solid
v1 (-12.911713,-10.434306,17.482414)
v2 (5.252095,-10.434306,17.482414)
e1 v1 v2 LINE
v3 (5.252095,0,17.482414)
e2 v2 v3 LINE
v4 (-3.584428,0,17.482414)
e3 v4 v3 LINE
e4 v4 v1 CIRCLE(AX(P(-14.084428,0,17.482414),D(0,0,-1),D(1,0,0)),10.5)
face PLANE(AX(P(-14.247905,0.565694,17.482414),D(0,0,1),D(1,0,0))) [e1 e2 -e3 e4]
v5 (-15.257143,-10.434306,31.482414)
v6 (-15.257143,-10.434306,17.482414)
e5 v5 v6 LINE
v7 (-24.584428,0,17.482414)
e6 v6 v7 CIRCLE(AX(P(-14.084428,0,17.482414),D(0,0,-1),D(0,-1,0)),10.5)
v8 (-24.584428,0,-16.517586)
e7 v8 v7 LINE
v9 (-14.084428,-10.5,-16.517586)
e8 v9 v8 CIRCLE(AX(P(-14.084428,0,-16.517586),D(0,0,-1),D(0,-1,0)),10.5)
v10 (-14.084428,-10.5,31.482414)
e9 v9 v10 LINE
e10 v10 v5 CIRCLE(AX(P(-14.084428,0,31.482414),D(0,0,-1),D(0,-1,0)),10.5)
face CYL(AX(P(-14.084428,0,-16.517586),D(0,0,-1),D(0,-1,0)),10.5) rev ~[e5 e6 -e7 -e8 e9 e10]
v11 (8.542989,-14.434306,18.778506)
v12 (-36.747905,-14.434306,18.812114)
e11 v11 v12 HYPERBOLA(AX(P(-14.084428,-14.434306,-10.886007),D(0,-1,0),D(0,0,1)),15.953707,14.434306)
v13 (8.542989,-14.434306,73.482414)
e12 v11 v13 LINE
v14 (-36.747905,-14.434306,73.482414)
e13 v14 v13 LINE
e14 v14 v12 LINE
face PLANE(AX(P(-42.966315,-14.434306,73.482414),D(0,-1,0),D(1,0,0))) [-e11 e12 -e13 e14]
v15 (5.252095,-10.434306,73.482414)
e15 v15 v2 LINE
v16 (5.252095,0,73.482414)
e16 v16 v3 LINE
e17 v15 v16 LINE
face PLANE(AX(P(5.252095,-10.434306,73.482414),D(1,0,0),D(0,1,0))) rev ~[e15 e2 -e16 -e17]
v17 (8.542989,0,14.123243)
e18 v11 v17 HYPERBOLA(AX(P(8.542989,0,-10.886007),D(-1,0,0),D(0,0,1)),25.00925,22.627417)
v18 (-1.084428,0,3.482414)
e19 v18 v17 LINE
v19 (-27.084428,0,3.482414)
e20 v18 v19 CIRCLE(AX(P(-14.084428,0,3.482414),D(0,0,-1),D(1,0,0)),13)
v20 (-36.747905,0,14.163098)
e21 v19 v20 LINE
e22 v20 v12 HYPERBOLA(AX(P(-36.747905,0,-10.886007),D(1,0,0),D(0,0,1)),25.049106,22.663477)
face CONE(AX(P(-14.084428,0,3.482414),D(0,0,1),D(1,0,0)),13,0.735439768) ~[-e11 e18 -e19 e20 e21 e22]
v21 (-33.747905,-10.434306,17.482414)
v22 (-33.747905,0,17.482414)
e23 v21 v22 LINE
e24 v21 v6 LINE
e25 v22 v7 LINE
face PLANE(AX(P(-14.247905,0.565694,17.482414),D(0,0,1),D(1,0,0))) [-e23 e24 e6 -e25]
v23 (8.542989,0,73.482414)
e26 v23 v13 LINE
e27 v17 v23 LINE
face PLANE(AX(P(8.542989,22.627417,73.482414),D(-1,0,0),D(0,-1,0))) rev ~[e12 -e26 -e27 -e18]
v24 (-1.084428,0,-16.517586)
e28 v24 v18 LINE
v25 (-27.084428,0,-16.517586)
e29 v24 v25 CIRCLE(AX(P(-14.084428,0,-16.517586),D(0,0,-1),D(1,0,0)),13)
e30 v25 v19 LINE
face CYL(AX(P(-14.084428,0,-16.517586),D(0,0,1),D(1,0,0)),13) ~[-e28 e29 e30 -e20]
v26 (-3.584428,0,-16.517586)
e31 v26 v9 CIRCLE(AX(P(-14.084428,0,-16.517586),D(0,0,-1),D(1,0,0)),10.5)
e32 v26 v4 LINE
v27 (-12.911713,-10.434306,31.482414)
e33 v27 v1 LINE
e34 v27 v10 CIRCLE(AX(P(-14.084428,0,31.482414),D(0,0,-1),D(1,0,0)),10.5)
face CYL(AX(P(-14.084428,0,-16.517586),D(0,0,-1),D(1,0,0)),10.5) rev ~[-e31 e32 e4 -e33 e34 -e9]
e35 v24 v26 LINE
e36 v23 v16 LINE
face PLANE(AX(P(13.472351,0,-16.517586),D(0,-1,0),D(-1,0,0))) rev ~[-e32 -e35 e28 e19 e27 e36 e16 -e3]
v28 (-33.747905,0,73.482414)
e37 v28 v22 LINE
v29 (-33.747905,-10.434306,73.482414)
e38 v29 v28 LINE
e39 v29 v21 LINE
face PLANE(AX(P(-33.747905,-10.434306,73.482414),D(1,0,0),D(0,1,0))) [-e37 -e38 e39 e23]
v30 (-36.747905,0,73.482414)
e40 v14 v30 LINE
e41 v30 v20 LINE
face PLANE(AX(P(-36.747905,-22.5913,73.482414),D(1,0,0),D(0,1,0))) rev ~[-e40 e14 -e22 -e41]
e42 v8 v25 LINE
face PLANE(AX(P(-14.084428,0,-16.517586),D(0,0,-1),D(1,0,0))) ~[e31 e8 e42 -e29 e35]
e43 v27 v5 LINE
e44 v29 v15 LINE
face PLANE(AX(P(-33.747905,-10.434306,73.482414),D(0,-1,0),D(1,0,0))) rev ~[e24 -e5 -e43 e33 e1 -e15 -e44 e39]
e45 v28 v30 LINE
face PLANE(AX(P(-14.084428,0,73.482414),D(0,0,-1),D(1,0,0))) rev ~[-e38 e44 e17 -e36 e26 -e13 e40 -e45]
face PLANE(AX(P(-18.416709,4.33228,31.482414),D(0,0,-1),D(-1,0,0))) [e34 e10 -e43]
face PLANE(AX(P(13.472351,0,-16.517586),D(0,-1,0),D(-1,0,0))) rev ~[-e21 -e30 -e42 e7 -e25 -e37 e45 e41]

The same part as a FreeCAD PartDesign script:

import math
import FreeCAD as App
import Part
import Sketcher

doc = App.newDocument("Part")
body = doc.addObject("PartDesign::Body", "Body")

sketch1 = body.newObject("Sketcher::SketchObject", "Sketch")
sketch1.AttachmentSupport = (doc.getObject("XZ_Plane"), [""])
sketch1.MapMode = "FlatFace"
sketch1.addGeometry([
    Part.LineSegment(App.Vector(-1, -17, 0), App.Vector(-14, -17, 0)),
    Part.LineSegment(App.Vector(-14, -17, 0), App.Vector(-14, 73, 0)),
    Part.LineSegment(App.Vector(-14, 73, 0), App.Vector(18, 73, 0)),
    Part.LineSegment(App.Vector(18, 73, 0), App.Vector(18, 24, 0)),
    Part.LineSegment(App.Vector(18, 24, 0), App.Vector(-1, 3, 0)),
    Part.LineSegment(App.Vector(-1, 3, 0), App.Vector(-1, -17, 0)),
], False)
sketch1.addGeometry(Part.LineSegment(App.Vector(-14, 73, 0), App.Vector(-14, -17, 0)), True)
sketch1.addConstraint([
    Sketcher.Constraint("Coincident", 0, 2, 1, 1),
    Sketcher.Constraint("Coincident", 1, 2, 2, 1),
    Sketcher.Constraint("Coincident", 2, 2, 3, 1),
    Sketcher.Constraint("Coincident", 3, 2, 4, 1),
    Sketcher.Constraint("Coincident", 4, 2, 5, 1),
    Sketcher.Constraint("Coincident", 5, 2, 0, 1),
    Sketcher.Constraint("Horizontal", 0),
    Sketcher.Constraint("Vertical", 1),
    Sketcher.Constraint("Horizontal", 2),
    Sketcher.Constraint("Vertical", 3),
    Sketcher.Constraint("Vertical", 5),
    Sketcher.Constraint("Vertical", 6),
    Sketcher.Constraint("Coincident", 6, 1, 1, 2),
    Sketcher.Constraint("Horizontal", 5, 2, 6, 2),
    Sketcher.Constraint("DistanceX", 0, 2, 0, 1, 13.0),
    Sketcher.Constraint("DistanceX", 2, 1, 2, 2, 32.0),
    Sketcher.Constraint("DistanceY", 1, 1, 1, 2, 90.0),
    Sketcher.Constraint("DistanceY", 3, 2, 3, 1, 49.0),
    Sketcher.Constraint("DistanceY", 5, 2, 5, 1, 20.0),
    Sketcher.Constraint("DistanceX", 0, 2, -1, 1, 14.084428),
    Sketcher.Constraint("DistanceY", 0, 2, -1, 1, 16.517586),
])
revolution = body.newObject("PartDesign::Revolution", "Revolution")
revolution.Profile = sketch1
revolution.ReferenceAxis = (sketch1, ["Axis0"])
revolution.Angle = 360

sketch2 = body.newObject("Sketcher::SketchObject", "Sketch001")
sketch2.AttachmentSupport = (doc.getObject("XY_Plane"), [""])
sketch2.MapMode = "FlatFace"
sketch2.AttachmentOffset = App.Placement(App.Vector(0, 0, 73.482414), App.Rotation())
sketch2.addGeometry([
    Part.ArcOfCircle(Part.Circle(App.Vector(-14, 0, 0), App.Vector(0, 0, 1), 32), math.radians(45), math.radians(90)),
    Part.ArcOfCircle(Part.Circle(App.Vector(-14, 0, 0), App.Vector(0, 0, 1), 32), math.radians(90), math.radians(135)),
    Part.LineSegment(App.Vector(-37, 23, 0), App.Vector(9, 23, 0)),
    Part.ArcOfCircle(Part.Circle(App.Vector(-14, 0, 0), App.Vector(0, 0, 1), 32), math.radians(135), math.radians(180)),
    Part.ArcOfCircle(Part.Circle(App.Vector(-14, 0, 0), App.Vector(0, 0, 1), 32), math.radians(180), math.radians(225)),
    Part.LineSegment(App.Vector(-37, -23, 0), App.Vector(-37, 23, 0)),
    Part.ArcOfCircle(Part.Circle(App.Vector(-14, 0, 0), App.Vector(0, 0, 1), 32), math.radians(-135), math.radians(-90)),
    Part.ArcOfCircle(Part.Circle(App.Vector(-14, 0, 0), App.Vector(0, 0, 1), 32), math.radians(-90), math.radians(0)),
    Part.ArcOfCircle(Part.Circle(App.Vector(-14, 0, 0), App.Vector(0, 0, 1), 32), math.radians(0), math.radians(45)),
    Part.LineSegment(App.Vector(9, 23, 0), App.Vector(9, -23, 0)),
    Part.LineSegment(App.Vector(9, -23, 0), App.Vector(-37, -23, 0)),
], False)
sketch2.addConstraint([
    Sketcher.Constraint("Tangent", 0, 2, 1, 1),
    Sketcher.Constraint("Coincident", 1, 2, 2, 1),
    Sketcher.Constraint("Coincident", 2, 2, 0, 1),
    Sketcher.Constraint("Tangent", 3, 2, 4, 1),
    Sketcher.Constraint("Coincident", 4, 2, 5, 1),
    Sketcher.Constraint("Coincident", 5, 2, 3, 1),
    Sketcher.Constraint("Tangent", 6, 2, 7, 1),
    Sketcher.Constraint("Tangent", 7, 2, 8, 1),
    Sketcher.Constraint("Coincident", 8, 2, 9, 1),
    Sketcher.Constraint("Coincident", 9, 2, 10, 1),
    Sketcher.Constraint("Coincident", 10, 2, 6, 1),
    Sketcher.Constraint("Horizontal", 2),
    Sketcher.Constraint("Vertical", 5),
    Sketcher.Constraint("Vertical", 9),
    Sketcher.Constraint("Horizontal", 10),
    Sketcher.Constraint("Coincident", 3, 3, 0, 3),
    Sketcher.Constraint("Coincident", 6, 3, 0, 3),
    Sketcher.Constraint("Coincident", 8, 3, 0, 3),
    Sketcher.Constraint("Coincident", 8, 2, 2, 2),
    Sketcher.Constraint("Coincident", 10, 2, 4, 2),
    Sketcher.Constraint("Equal", 0, 1),
    Sketcher.Constraint("Equal", 1, 3),
    Sketcher.Constraint("Symmetric", 0, 2, 6, 2, -1),
    Sketcher.Constraint("PointOnObject", 3, 2, -1),
    Sketcher.Constraint("PointOnObject", 7, 2, -1),
    Sketcher.Constraint("Vertical", 8, 3, 0, 2),
    Sketcher.Constraint("Radius", 0, 32.0),
    Sketcher.Constraint("DistanceY", 5, 1, 5, 2, 45.1826),
    Sketcher.Constraint("DistanceX", 2, 1, 2, 2, 45.254834),
    Sketcher.Constraint("DistanceX", 0, 3, -1, 1, 14.084428),
])
pocket1 = body.newObject("PartDesign::Pocket", "Pocket")
pocket1.Profile = sketch2
pocket1.Length = 75

sketch3 = body.newObject("Sketcher::SketchObject", "Sketch002")
sketch3.AttachmentSupport = (doc.getObject("XY_Plane"), [""])
sketch3.MapMode = "FlatFace"
sketch3.AttachmentOffset = App.Placement(App.Vector(0, 0, -16.517586), App.Rotation())
sketch3.addGeometry([
    Part.ArcOfCircle(Part.Circle(App.Vector(-14, 0, 0), App.Vector(0, 0, 1), 11), math.radians(0), math.radians(90)),
    Part.ArcOfCircle(Part.Circle(App.Vector(-14, 0, 0), App.Vector(0, 0, 1), 11), math.radians(-90), math.radians(0)),
    Part.ArcOfCircle(Part.Circle(App.Vector(-14, 0, 0), App.Vector(0, 0, 1), 10), math.radians(180), math.radians(270)),
    Part.ArcOfCircle(Part.Circle(App.Vector(-14, 0, 0), App.Vector(0, 0, 1), 10), math.radians(90), math.radians(180)),
], False)
sketch3.addConstraint([
    Sketcher.Constraint("Tangent", 0, 1, 1, 2),
    Sketcher.Constraint("Tangent", 1, 1, 2, 2),
    Sketcher.Constraint("Tangent", 2, 1, 3, 2),
    Sketcher.Constraint("Tangent", 3, 1, 0, 2),
    Sketcher.Constraint("Equal", 0, 1),
    Sketcher.Constraint("Symmetric", 1, 1, 3, 1, -1),
    Sketcher.Constraint("PointOnObject", 0, 1, -1),
    Sketcher.Constraint("PointOnObject", 2, 1, -1),
    Sketcher.Constraint("Vertical", 3, 3, 1, 1),
    Sketcher.Constraint("Radius", 0, 10.5),
    Sketcher.Constraint("DistanceX", 0, 3, -1, 1, 14.084428),
])
pocket2 = body.newObject("PartDesign::Pocket", "Pocket001")
pocket2.Profile = sketch3
pocket2.Length = 48
pocket2.Reversed = True

sketch4 = body.newObject("Sketcher::SketchObject", "Sketch003")
sketch4.AttachmentSupport = (doc.getObject("XY_Plane"), [""])
sketch4.MapMode = "FlatFace"
sketch4.AttachmentOffset = App.Placement(App.Vector(0, 0, 73.482414), App.Rotation())
sketch4.addGeometry([
    Part.LineSegment(App.Vector(-34, 12, 0), App.Vector(-34, -10, 0)),
    Part.LineSegment(App.Vector(-34, -10, 0), App.Vector(5, -10, 0)),
    Part.LineSegment(App.Vector(5, -10, 0), App.Vector(5, 12, 0)),
    Part.LineSegment(App.Vector(5, 12, 0), App.Vector(-34, 12, 0)),
], False)
sketch4.addConstraint([
    Sketcher.Constraint("Coincident", 0, 2, 1, 1),
    Sketcher.Constraint("Coincident", 1, 2, 2, 1),
    Sketcher.Constraint("Coincident", 2, 2, 3, 1),
    Sketcher.Constraint("Coincident", 3, 2, 0, 1),
    Sketcher.Constraint("Vertical", 0),
    Sketcher.Constraint("Horizontal", 1),
    Sketcher.Constraint("Vertical", 2),
    Sketcher.Constraint("Horizontal", 3),
    Sketcher.Constraint("DistanceX", 1, 1, 1, 2, 39.0),
    Sketcher.Constraint("DistanceY", 0, 2, 0, 1, 22.0),
    Sketcher.Constraint("DistanceX", 0, 2, -1, 1, 33.747905),
    Sketcher.Constraint("DistanceY", 0, 2, -1, 1, 10.434306),
])
pocket3 = body.newObject("PartDesign::Pocket", "Pocket002")
pocket3.Profile = sketch4
pocket3.Length = 56

sketch5 = body.newObject("Sketcher::SketchObject", "Sketch004")
sketch5.AttachmentSupport = (doc.getObject("XY_Plane"), [""])
sketch5.MapMode = "FlatFace"
sketch5.AttachmentOffset = App.Placement(App.Vector(0, 0, 73.482414), App.Rotation())
sketch5.addGeometry([
    Part.LineSegment(App.Vector(-40, 24, 0), App.Vector(-40, 16, 0)),
    Part.LineSegment(App.Vector(-40, 16, 0), App.Vector(11, 16, 0)),
    Part.LineSegment(App.Vector(11, 16, 0), App.Vector(11, 24, 0)),
    Part.LineSegment(App.Vector(11, 24, 0), App.Vector(-40, 24, 0)),
    Part.LineSegment(App.Vector(-43, -14, 0), App.Vector(-43, -24, 0)),
    Part.LineSegment(App.Vector(-43, -24, 0), App.Vector(12, -24, 0)),
    Part.LineSegment(App.Vector(12, -24, 0), App.Vector(12, -14, 0)),
    Part.LineSegment(App.Vector(12, -14, 0), App.Vector(-43, -14, 0)),
], False)
sketch5.addConstraint([
    Sketcher.Constraint("Coincident", 0, 2, 1, 1),
    Sketcher.Constraint("Coincident", 1, 2, 2, 1),
    Sketcher.Constraint("Coincident", 2, 2, 3, 1),
    Sketcher.Constraint("Coincident", 3, 2, 0, 1),
    Sketcher.Constraint("Coincident", 4, 2, 5, 1),
    Sketcher.Constraint("Coincident", 5, 2, 6, 1),
    Sketcher.Constraint("Coincident", 6, 2, 7, 1),
    Sketcher.Constraint("Coincident", 7, 2, 4, 1),
    Sketcher.Constraint("Vertical", 0),
    Sketcher.Constraint("Horizontal", 1),
    Sketcher.Constraint("Vertical", 2),
    Sketcher.Constraint("Horizontal", 3),
    Sketcher.Constraint("Vertical", 4),
    Sketcher.Constraint("Horizontal", 5),
    Sketcher.Constraint("Vertical", 6),
    Sketcher.Constraint("Horizontal", 7),
    Sketcher.Constraint("DistanceY", 6, 2, 1, 2, 30.0),
    Sketcher.Constraint("DistanceX", 1, 1, 1, 2, 50.821005),
    Sketcher.Constraint("DistanceX", 5, 1, 5, 2, 55.150584),
    Sketcher.Constraint("DistanceY", 0, 2, 0, 1, 8.659157),
    Sketcher.Constraint("DistanceY", 4, 2, 4, 1, 9.071498),
    Sketcher.Constraint("DistanceY", -1, 1, 2, 2, 24.224851),
    Sketcher.Constraint("DistanceX", -1, 1, 5, 2, 12.184269),
    Sketcher.Constraint("DistanceX", 4, 2, 0, 2, 3.401812),
])
pocket4 = body.newObject("PartDesign::Pocket", "Pocket003")
pocket4.Profile = sketch5
pocket4.Length = 90

sketch6 = body.newObject("Sketcher::SketchObject", "Sketch005")
sketch6.AttachmentSupport = (doc.getObject("XY_Plane"), [""])
sketch6.MapMode = "FlatFace"
sketch6.AttachmentOffset = App.Placement(App.Vector(0, 0, -16.517586), App.Rotation())
sketch6.addGeometry([
    Part.LineSegment(App.Vector(13, 18, 0), App.Vector(13, 0, 0)),
    Part.LineSegment(App.Vector(13, 0, 0), App.Vector(-39, 0, 0)),
    Part.LineSegment(App.Vector(-39, 0, 0), App.Vector(-39, 18, 0)),
    Part.LineSegment(App.Vector(-39, 18, 0), App.Vector(13, 18, 0)),
], False)
sketch6.addConstraint([
    Sketcher.Constraint("Coincident", 0, 2, 1, 1),
    Sketcher.Constraint("Coincident", 1, 2, 2, 1),
    Sketcher.Constraint("Coincident", 2, 2, 3, 1),
    Sketcher.Constraint("Coincident", 3, 2, 0, 1),
    Sketcher.Constraint("Vertical", 0),
    Sketcher.Constraint("Horizontal", 1),
    Sketcher.Constraint("Vertical", 2),
    Sketcher.Constraint("Horizontal", 3),
    Sketcher.Constraint("PointOnObject", 0, 2, -1),
    Sketcher.Constraint("DistanceX", 1, 2, 1, 1, 52.591955),
    Sketcher.Constraint("DistanceY", 0, 2, 0, 1, 17.949813),
    Sketcher.Constraint("DistanceX", -1, 1, 0, 2, 13.472351),
])
pocket5 = body.newObject("PartDesign::Pocket", "Pocket004")
pocket5.Profile = sketch6
pocket5.Length = 100
pocket5.Reversed = True

doc.recompute()
